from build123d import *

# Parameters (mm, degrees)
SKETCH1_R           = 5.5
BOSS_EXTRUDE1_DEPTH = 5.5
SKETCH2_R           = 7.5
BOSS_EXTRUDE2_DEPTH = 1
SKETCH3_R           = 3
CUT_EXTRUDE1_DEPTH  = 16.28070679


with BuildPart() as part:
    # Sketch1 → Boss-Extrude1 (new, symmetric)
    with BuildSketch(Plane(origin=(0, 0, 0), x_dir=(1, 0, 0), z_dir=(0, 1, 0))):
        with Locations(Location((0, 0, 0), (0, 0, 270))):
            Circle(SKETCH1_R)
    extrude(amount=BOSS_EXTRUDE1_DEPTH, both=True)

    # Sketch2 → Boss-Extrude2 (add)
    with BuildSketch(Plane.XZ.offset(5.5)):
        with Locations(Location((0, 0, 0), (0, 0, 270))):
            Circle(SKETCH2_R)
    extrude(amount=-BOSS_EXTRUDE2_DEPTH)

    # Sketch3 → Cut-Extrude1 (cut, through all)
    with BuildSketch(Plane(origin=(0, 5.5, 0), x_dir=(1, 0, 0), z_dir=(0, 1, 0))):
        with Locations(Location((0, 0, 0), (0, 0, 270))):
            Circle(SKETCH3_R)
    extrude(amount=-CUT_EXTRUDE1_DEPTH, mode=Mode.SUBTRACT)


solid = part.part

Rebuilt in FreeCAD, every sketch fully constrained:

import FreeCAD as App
import Part
import Sketcher
from FreeCAD import Vector
Q = App.Units.Quantity

doc = App.newDocument("Part")
body = doc.addObject("PartDesign::Body", "Body")

# Sketch on XZ plane
sketch1 = body.newObject("Sketcher::SketchObject", "Sketch")
sketch1.AttachmentSupport = (doc.getObject("XZ_Plane"), [""])
sketch1.MapMode = "FlatFace"
sketch1.addGeometry(Part.Circle(Vector(0, 0, 0), Vector(0, 0, 1), 6), False)
sketch1.addConstraint(Sketcher.Constraint("Coincident", 0, 3, -1, 1))
sketch1.addConstraint(Sketcher.Constraint("Diameter", 0, Q("11 mm")))
pad1 = body.newObject("PartDesign::Pad", "Pad")
pad1.Profile = sketch1
pad1.Length = 11
pad1.Midplane = True

# Sketch on XZ plane
sketch2 = body.newObject("Sketcher::SketchObject", "Sketch001")
sketch2.AttachmentSupport = (doc.getObject("XZ_Plane"), [""])
sketch2.MapMode = "FlatFace"
sketch2.AttachmentOffset = App.Placement(Vector(0, 0, 5.5), App.Rotation())
sketch2.addGeometry(Part.Circle(Vector(0, 0, 0), Vector(0, 0, 1), 8), False)
sketch2.addConstraint(Sketcher.Constraint("Coincident", 0, 3, -1, 1))
sketch2.addConstraint(Sketcher.Constraint("Diameter", 0, Q("15 mm")))
pad2 = body.newObject("PartDesign::Pad", "Pad001")
pad2.Profile = sketch2
pad2.Length = 1
pad2.Reversed = True

# Sketch on XZ plane
sketch3 = body.newObject("Sketcher::SketchObject", "Sketch002")
sketch3.AttachmentSupport = (doc.getObject("XZ_Plane"), [""])
sketch3.MapMode = "FlatFace"
sketch3.AttachmentOffset = App.Placement(Vector(0, 0, -5.5), App.Rotation())
sketch3.addGeometry(Part.Circle(Vector(0, 0, 0), Vector(0, 0, 1), 3), False)
sketch3.addConstraint(Sketcher.Constraint("Coincident", 0, 3, -1, 1))
sketch3.addConstraint(Sketcher.Constraint("Diameter", 0, Q("6 mm")))
pocket1 = body.newObject("PartDesign::Pocket", "Pocket")
pocket1.Profile = sketch3
pocket1.Type = "ThroughAll"
pocket1.Reversed = True

doc.recompute()
